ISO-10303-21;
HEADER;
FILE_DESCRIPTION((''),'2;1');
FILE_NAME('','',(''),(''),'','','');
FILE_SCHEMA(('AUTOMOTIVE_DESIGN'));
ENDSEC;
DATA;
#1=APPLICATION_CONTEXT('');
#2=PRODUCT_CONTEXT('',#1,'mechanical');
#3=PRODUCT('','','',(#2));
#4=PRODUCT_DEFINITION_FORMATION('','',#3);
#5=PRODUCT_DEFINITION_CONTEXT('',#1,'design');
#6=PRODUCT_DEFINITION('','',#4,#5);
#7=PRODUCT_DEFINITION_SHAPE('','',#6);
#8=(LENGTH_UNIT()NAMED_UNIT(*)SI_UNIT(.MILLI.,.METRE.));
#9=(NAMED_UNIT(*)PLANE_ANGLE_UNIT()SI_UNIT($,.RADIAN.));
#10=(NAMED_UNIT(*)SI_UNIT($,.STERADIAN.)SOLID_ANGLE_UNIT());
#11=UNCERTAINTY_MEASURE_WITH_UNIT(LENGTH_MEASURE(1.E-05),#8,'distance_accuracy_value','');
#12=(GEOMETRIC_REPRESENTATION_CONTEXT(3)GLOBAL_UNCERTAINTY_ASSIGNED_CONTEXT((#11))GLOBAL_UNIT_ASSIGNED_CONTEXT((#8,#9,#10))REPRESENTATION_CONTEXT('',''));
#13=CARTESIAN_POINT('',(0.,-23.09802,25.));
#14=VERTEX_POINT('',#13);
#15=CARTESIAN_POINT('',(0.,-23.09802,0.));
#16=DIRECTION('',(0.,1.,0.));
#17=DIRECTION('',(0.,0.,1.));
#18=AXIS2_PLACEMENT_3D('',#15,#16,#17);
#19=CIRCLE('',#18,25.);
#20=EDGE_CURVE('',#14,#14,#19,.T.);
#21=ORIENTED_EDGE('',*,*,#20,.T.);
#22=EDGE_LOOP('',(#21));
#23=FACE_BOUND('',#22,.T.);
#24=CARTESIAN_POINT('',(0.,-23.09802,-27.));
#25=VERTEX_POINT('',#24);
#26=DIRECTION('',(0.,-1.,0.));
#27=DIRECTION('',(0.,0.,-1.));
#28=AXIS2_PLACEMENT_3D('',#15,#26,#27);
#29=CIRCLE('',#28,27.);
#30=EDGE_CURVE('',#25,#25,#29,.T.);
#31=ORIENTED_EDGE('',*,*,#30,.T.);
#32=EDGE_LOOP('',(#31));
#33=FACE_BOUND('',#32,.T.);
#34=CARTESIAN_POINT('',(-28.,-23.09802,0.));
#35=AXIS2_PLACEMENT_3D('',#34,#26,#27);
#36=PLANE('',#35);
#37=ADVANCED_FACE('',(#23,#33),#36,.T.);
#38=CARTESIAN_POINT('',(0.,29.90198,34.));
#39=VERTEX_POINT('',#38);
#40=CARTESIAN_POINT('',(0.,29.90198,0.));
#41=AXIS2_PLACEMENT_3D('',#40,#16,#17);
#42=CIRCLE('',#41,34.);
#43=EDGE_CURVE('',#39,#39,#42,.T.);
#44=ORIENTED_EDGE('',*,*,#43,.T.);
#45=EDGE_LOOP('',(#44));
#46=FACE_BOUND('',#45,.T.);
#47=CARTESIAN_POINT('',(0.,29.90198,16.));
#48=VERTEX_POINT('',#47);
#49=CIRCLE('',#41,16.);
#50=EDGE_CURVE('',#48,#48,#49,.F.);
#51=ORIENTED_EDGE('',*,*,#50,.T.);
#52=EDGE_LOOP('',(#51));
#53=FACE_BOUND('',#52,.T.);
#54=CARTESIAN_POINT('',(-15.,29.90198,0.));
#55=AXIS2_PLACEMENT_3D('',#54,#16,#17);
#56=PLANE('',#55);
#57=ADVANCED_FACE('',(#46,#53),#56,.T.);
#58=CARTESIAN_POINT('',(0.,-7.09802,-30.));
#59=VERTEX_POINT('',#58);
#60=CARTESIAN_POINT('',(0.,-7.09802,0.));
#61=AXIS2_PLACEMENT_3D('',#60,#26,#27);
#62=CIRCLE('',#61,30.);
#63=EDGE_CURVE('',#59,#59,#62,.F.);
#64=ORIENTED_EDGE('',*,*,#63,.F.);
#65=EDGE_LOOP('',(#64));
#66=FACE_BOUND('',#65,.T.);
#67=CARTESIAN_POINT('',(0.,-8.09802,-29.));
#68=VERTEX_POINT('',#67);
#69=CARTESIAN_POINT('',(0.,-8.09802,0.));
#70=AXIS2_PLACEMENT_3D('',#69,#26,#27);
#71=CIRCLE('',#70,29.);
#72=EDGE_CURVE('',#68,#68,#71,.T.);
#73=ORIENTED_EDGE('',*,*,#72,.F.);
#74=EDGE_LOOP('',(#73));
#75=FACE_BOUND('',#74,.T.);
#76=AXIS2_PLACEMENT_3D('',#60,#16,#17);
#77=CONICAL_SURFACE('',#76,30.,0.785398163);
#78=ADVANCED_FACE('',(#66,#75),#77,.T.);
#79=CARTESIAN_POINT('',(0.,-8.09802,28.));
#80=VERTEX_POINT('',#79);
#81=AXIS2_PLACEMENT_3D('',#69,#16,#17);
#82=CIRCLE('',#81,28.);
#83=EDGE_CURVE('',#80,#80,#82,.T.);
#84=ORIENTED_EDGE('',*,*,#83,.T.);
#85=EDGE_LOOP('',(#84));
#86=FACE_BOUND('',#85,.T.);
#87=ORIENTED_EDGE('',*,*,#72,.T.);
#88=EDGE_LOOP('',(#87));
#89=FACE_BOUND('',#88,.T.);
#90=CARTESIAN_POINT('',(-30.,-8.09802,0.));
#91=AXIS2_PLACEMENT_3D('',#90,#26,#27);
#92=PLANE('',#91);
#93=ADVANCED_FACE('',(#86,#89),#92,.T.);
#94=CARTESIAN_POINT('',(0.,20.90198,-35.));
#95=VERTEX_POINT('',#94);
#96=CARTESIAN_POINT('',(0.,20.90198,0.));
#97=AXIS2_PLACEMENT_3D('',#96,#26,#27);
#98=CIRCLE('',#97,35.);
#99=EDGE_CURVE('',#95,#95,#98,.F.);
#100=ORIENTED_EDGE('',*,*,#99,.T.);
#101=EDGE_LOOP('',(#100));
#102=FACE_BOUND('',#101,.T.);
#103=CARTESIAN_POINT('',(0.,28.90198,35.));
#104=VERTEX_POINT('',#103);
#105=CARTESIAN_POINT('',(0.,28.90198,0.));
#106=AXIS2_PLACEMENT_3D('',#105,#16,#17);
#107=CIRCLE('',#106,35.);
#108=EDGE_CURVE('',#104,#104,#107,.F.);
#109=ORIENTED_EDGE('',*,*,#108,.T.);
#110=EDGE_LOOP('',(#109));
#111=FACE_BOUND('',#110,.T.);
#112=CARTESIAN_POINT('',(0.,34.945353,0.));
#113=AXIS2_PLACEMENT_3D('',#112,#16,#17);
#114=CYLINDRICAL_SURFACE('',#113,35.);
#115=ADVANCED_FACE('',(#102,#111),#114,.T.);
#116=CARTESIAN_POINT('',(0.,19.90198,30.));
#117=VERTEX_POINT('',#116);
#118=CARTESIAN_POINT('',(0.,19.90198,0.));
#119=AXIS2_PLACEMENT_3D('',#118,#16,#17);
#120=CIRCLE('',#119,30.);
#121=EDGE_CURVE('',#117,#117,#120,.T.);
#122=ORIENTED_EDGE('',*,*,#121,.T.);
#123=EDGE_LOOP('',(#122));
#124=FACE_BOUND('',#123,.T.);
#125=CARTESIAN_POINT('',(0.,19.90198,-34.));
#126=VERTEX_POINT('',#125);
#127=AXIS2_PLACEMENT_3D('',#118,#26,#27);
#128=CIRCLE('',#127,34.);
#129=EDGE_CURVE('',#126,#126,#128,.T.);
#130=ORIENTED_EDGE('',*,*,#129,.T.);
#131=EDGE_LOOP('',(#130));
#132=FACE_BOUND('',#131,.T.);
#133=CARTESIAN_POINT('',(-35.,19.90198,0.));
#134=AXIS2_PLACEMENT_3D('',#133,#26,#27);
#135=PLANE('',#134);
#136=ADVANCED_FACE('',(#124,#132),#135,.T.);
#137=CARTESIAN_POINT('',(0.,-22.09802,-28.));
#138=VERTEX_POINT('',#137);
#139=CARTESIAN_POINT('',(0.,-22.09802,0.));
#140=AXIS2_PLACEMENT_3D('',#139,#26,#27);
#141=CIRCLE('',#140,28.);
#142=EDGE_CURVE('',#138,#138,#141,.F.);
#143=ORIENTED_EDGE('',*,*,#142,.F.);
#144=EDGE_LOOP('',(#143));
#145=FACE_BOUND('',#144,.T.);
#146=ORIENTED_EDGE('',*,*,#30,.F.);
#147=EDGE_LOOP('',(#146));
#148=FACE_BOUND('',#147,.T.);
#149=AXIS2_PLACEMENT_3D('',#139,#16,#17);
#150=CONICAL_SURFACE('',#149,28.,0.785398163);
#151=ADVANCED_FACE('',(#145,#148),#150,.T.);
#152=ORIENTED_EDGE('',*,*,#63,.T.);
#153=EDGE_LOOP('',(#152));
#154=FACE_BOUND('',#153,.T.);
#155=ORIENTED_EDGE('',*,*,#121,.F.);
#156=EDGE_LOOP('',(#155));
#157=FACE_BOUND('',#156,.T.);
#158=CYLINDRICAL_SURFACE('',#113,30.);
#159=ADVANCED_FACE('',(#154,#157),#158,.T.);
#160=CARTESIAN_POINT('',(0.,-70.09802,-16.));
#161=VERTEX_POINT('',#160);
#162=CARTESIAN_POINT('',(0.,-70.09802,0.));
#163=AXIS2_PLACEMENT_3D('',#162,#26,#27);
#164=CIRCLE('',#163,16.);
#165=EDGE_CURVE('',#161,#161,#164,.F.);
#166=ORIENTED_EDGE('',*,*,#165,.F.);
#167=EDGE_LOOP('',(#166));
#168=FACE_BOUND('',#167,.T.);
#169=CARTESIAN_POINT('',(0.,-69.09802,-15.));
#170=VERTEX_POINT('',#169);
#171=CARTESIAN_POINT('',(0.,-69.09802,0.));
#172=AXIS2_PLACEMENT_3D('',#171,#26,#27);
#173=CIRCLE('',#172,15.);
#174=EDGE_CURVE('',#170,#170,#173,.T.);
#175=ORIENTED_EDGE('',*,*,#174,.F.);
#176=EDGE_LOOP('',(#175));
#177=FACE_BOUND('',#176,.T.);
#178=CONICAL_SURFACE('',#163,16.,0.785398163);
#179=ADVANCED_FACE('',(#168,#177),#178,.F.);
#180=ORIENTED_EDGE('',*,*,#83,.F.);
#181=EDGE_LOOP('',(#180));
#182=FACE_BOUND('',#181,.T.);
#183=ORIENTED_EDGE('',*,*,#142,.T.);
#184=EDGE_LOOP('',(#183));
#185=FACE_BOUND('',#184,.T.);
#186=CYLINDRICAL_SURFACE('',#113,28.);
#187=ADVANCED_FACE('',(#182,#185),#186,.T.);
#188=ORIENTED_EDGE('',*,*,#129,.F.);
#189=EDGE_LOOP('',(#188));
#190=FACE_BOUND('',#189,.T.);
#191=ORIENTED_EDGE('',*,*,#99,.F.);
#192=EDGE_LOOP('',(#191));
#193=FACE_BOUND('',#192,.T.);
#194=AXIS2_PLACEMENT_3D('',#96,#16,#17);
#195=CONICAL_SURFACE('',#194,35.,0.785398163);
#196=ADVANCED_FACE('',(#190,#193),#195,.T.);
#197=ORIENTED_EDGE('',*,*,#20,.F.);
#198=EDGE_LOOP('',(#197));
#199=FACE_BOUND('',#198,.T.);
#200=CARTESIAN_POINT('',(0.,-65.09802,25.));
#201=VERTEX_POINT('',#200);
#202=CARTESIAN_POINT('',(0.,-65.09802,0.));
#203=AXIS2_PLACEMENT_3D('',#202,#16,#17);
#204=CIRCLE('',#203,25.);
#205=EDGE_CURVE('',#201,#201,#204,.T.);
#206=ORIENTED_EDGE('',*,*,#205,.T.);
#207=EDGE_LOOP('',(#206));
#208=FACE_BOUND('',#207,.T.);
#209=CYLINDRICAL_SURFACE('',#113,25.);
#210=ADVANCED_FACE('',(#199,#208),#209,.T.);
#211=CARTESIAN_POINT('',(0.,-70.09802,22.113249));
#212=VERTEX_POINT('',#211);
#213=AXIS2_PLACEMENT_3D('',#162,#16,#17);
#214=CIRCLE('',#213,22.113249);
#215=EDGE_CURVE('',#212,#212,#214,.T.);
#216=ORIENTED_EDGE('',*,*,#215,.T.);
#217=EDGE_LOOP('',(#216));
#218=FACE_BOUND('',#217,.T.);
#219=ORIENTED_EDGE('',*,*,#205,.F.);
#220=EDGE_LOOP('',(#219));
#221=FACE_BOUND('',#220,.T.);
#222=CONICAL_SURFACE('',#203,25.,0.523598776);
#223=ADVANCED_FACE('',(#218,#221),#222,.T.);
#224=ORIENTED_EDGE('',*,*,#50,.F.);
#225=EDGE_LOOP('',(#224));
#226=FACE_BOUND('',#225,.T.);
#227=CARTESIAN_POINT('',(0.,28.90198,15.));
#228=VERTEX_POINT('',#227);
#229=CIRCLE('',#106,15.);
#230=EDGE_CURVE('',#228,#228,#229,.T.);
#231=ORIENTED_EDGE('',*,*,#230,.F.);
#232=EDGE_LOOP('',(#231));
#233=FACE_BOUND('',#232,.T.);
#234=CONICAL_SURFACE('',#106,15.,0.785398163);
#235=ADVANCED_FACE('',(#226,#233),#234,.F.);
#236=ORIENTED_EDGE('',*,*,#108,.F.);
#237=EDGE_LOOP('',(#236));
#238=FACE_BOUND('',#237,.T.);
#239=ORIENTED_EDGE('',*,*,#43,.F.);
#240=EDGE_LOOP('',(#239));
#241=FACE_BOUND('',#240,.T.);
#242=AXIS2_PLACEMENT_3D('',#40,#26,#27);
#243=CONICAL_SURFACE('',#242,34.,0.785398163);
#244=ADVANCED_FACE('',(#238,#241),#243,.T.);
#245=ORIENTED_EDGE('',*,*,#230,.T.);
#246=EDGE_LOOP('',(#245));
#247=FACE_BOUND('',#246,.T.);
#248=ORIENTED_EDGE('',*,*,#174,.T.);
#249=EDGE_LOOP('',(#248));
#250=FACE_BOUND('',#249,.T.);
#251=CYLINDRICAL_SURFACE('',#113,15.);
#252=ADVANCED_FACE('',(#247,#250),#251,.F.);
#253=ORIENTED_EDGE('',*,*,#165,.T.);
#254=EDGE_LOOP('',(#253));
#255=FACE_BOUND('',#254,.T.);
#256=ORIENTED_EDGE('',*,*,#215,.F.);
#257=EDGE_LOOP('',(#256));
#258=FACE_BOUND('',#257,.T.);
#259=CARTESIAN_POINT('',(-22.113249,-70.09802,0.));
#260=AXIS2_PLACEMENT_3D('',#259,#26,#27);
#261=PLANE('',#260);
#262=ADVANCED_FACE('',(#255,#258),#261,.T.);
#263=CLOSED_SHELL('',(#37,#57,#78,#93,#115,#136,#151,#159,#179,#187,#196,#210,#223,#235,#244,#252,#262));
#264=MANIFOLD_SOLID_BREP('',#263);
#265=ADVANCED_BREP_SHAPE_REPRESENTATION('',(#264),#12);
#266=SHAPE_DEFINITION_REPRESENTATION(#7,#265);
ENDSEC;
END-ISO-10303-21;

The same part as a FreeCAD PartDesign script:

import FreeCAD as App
import Part
import Sketcher
Q = App.Units.Quantity


def edges_at(feature, points):
    """Names of the edges that pass closest to the given points."""
    edges = feature.Shape.Edges
    near = lambda p: min(range(len(edges)), key=lambda i: edges[i].distToShape(Part.Vertex(*p))[0])
    return sorted({f"Edge{near(p) + 1}" for p in points})


def add_polygon(sketch, points):
    """Adds a closed chain of lines whose ends are joined by coincident constraints."""
    first, n = sketch.GeometryCount, len(points)
    for a, b in zip(points, points[1:] + points[:1]):
        sketch.addGeometry(Part.LineSegment(App.Vector(*a, 0), App.Vector(*b, 0)), False)
    for i in range(n):
        sketch.addConstraint(Sketcher.Constraint("Coincident", first + i, 2, first + (i + 1) % n, 1))

doc = App.newDocument("Part")
body = doc.addObject("PartDesign::Body", "Body")

sketch1 = body.newObject("Sketcher::SketchObject", "Sketch")
sketch1.AttachmentSupport = (doc.getObject("XY_Plane"), [""])
sketch1.MapMode = "FlatFace"
add_polygon(sketch1, [(-15, -70.1), (-15, 29.9), (-35, 29.9), (-35, 19.9), (-30, 19.9), (-30, -8.1), (-28, -8.1), (-28, -23.1), (-25, -23.1), (-25, -65.1), (-22.1, -70.1)])
sketch1.addConstraint([
    Sketcher.Constraint("Vertical", 0),
    Sketcher.Constraint("Horizontal", 1),
    Sketcher.Constraint("Vertical", 2),
    Sketcher.Constraint("Horizontal", 3),
    Sketcher.Constraint("Vertical", 4),
    Sketcher.Constraint("Horizontal", 5),
    Sketcher.Constraint("Vertical", 6),
    Sketcher.Constraint("Horizontal", 7),
    Sketcher.Constraint("Vertical", 8),
    Sketcher.Constraint("Horizontal", 10),
    Sketcher.Constraint("DistanceX", 1, 2, 1, 1, 20.0),
    Sketcher.Constraint("DistanceX", 3, 1, 3, 2, 5.0),
    Sketcher.Constraint("DistanceX", 5, 1, 5, 2, 2.0),
    Sketcher.Constraint("DistanceX", 7, 1, 7, 2, 3.0),
    Sketcher.Constraint("DistanceY", 0, 1, 0, 2, 100.0),
    Sketcher.Constraint("DistanceY", 2, 2, 2, 1, 10.0),
    Sketcher.Constraint("DistanceY", 4, 2, 4, 1, 28.0),
    Sketcher.Constraint("DistanceY", 6, 2, 6, 1, 15.0),
    Sketcher.Constraint("DistanceY", 8, 2, 8, 1, 42.0),
    Sketcher.Constraint("Angle", 9, Q("-60 deg")),
    Sketcher.Constraint("DistanceX", 0, 2, -1, 1, 15.0),
    Sketcher.Constraint("DistanceY", -1, 1, 0, 2, 29.90198),
])
revolution = body.newObject("PartDesign::Revolution", "Revolution")
revolution.Profile = sketch1
revolution.ReferenceAxis = (sketch1, ["V_Axis"])
revolution.Angle = 360
doc.recompute()

chamfer = body.newObject("PartDesign::Chamfer", "Chamfer")
chamfer.Base = (revolution, edges_at(revolution, [
    (0, 19.902, -35),
    (0, 29.902, -35),
    (0, 29.902, -15),
    (0, -70.098, -15),
    (0, -23.098, -28),
    (0, -8.098, -30),
]))
chamfer.Size = 1

doc.recompute()
